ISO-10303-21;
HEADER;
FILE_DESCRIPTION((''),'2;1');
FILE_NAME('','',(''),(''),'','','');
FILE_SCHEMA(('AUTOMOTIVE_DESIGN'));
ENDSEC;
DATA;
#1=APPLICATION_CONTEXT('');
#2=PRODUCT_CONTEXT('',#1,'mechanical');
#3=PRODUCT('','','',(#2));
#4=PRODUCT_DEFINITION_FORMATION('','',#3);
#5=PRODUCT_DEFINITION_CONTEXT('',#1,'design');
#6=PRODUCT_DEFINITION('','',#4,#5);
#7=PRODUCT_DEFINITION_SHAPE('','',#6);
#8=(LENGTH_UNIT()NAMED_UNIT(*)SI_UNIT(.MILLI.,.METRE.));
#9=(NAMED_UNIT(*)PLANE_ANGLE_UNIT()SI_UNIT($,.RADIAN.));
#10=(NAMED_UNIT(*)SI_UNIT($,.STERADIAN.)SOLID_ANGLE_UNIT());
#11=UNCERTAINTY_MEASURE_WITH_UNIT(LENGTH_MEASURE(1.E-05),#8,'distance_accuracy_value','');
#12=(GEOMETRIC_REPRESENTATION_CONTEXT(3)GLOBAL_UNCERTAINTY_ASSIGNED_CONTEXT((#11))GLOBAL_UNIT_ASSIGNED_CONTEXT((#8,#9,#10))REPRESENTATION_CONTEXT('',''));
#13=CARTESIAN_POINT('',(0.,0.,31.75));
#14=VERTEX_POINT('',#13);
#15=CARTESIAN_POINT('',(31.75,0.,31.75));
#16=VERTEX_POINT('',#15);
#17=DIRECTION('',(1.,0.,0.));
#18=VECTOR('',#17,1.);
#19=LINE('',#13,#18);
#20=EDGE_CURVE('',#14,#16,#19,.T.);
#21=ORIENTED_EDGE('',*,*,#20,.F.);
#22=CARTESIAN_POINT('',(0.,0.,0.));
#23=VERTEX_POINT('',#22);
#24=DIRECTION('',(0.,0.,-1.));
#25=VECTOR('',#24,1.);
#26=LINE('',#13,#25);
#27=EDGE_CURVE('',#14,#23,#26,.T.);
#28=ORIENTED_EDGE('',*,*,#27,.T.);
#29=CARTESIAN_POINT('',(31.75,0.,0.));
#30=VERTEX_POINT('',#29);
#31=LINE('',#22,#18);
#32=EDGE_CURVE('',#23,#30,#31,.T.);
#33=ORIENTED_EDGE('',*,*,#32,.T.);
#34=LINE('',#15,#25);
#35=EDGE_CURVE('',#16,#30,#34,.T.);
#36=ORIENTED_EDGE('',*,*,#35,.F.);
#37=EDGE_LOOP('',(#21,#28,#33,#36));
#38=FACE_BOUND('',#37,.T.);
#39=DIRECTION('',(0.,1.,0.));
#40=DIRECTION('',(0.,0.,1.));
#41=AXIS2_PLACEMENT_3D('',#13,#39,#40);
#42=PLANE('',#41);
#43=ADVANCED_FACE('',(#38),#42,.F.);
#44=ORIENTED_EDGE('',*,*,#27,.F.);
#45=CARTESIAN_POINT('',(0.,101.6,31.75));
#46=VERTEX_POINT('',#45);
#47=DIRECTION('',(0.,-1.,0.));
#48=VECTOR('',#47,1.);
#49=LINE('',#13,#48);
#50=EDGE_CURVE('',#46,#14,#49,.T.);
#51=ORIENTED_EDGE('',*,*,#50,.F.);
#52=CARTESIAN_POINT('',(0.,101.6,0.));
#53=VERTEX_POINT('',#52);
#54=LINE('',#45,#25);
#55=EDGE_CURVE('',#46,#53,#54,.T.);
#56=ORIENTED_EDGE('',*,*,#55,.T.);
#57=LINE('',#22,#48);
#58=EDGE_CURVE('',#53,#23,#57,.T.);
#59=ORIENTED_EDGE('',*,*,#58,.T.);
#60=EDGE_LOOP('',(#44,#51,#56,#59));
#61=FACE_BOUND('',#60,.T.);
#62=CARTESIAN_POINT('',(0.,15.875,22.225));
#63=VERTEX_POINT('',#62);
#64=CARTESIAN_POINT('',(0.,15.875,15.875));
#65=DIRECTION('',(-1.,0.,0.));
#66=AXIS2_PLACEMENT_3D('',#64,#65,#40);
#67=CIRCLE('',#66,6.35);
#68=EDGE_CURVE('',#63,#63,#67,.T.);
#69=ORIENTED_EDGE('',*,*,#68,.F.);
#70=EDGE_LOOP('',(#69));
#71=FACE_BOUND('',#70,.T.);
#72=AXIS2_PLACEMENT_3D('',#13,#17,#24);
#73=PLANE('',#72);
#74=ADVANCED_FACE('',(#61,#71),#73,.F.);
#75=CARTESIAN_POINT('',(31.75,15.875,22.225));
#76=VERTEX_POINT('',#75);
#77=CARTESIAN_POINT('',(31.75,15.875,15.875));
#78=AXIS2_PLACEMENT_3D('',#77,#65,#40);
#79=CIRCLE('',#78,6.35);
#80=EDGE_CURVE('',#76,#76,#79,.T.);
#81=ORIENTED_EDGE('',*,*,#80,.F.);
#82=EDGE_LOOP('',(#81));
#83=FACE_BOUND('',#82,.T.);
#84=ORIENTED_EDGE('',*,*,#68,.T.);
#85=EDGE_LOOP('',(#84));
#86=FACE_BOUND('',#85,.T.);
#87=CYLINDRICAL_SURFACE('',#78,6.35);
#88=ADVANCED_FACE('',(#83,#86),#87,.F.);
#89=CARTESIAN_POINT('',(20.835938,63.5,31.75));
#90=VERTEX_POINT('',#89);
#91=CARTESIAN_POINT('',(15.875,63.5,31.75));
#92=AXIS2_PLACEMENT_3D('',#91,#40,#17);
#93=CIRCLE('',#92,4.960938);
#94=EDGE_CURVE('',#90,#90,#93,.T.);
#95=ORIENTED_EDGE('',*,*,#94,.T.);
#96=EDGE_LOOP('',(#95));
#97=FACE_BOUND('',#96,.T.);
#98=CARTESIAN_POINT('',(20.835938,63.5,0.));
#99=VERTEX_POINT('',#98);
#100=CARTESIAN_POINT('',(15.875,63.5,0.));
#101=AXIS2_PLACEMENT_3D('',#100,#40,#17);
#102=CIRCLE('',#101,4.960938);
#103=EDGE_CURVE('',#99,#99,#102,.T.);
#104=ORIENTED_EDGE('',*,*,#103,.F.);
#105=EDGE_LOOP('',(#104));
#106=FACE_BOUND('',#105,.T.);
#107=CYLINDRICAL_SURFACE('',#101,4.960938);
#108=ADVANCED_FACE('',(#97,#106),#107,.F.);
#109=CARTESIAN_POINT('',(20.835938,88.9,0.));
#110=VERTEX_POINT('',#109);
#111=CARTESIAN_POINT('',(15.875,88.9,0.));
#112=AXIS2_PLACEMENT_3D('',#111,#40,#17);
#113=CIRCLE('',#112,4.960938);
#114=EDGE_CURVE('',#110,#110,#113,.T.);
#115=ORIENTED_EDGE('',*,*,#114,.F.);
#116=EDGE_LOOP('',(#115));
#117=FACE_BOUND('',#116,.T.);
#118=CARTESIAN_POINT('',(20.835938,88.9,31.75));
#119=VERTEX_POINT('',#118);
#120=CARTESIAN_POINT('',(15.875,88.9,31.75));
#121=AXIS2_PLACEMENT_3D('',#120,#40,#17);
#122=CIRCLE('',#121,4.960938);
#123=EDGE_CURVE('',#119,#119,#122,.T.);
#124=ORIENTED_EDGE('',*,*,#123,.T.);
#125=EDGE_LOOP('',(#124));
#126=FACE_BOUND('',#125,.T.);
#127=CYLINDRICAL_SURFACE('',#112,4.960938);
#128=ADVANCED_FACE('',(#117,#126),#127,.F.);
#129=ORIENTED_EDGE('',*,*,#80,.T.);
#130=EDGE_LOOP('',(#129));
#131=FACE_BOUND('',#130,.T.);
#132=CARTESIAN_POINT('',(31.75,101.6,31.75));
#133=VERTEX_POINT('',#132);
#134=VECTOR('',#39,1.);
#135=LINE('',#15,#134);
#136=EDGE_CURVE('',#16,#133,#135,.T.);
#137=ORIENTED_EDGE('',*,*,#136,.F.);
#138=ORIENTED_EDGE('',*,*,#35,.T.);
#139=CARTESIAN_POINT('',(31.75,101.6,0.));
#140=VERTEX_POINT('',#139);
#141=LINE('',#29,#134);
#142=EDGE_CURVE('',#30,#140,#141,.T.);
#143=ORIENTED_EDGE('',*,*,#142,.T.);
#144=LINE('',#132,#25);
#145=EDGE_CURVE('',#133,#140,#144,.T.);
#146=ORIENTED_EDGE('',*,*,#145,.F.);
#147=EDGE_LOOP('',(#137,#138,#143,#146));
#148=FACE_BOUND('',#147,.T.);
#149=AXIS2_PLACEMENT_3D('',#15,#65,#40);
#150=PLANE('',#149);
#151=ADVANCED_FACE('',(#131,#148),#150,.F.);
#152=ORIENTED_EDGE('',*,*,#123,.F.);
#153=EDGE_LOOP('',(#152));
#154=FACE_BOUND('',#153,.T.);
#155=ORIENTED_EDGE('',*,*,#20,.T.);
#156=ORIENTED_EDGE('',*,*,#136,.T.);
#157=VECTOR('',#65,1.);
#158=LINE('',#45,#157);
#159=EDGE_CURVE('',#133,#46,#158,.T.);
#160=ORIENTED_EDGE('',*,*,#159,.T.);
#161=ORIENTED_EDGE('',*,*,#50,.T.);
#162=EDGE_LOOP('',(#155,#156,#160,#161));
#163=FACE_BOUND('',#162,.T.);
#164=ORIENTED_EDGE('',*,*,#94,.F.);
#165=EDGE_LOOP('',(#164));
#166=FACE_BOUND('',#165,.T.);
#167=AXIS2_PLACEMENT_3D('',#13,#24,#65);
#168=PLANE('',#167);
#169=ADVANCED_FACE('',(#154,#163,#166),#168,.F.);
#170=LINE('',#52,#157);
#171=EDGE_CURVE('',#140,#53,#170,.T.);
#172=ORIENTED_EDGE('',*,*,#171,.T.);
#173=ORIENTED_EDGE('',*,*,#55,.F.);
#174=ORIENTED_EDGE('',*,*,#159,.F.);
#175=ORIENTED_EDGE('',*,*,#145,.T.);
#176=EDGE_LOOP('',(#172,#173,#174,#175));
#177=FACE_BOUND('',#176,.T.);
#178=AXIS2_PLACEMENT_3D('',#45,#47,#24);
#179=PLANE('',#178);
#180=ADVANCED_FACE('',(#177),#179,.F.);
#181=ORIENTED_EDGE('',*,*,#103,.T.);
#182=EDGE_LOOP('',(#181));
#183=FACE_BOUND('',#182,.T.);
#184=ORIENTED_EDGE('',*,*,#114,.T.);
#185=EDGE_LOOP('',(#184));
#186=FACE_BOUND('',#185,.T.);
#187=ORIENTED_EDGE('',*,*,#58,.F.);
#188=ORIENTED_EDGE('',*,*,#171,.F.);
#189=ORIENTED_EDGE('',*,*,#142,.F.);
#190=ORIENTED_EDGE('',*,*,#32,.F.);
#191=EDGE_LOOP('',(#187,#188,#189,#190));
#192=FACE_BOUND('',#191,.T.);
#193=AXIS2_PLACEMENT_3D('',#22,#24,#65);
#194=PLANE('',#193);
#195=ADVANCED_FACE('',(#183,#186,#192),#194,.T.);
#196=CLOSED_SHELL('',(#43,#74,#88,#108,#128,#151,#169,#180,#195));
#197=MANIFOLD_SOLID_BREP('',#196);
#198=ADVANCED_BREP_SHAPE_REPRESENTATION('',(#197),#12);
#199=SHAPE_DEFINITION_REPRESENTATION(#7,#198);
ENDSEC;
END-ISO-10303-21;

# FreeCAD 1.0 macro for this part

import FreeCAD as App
import Part
import Sketcher

V = App.Vector
Q = App.Units.Quantity

doc = App.newDocument("Part")
body = doc.addObject("PartDesign::Body", "Body")

# Sketch on XY plane
sketch1 = doc.addObject("Sketcher::SketchObject", "Sketch")
body.addObject(sketch1)
sketch1.AttachmentSupport = (doc.XY_Plane, [""])
sketch1.MapMode = "FlatFace"
sketch1.addGeometry(Part.LineSegment(V(0, 101.6, 0), V(0, 0, 0)), False)
sketch1.addGeometry(Part.LineSegment(V(0, 0, 0), V(31.75, 0, 0)), False)
sketch1.addGeometry(Part.LineSegment(V(31.75, 0, 0), V(31.75, 101.6, 0)), False)
sketch1.addGeometry(Part.LineSegment(V(31.75, 101.6, 0), V(0, 101.6, 0)), False)
sketch1.addConstraint(Sketcher.Constraint("Coincident", 0, 2, 1, 1))
sketch1.addConstraint(Sketcher.Constraint("Coincident", 1, 2, 2, 1))
sketch1.addConstraint(Sketcher.Constraint("Coincident", 2, 2, 3, 1))
sketch1.addConstraint(Sketcher.Constraint("Coincident", 3, 2, 0, 1))
sketch1.addConstraint(Sketcher.Constraint("Vertical", 0))
sketch1.addConstraint(Sketcher.Constraint("Horizontal", 1))
sketch1.addConstraint(Sketcher.Constraint("Vertical", 2))
sketch1.addConstraint(Sketcher.Constraint("Horizontal", 3))
sketch1.addConstraint(Sketcher.Constraint("Coincident", 0, 2, -1, 1))
sketch1.addConstraint(Sketcher.Constraint("DistanceY", 0, 2, 0, 1, Q("4 in")))
sketch1.addConstraint(Sketcher.Constraint("DistanceX", 1, 1, 1, 2, Q("1.25 in")))
pad1 = doc.addObject("PartDesign::Pad", "Pad")
body.addObject(pad1)
pad1.Profile = sketch1
pad1.Length = Q("1.25 in")

# Sketch on XY plane
sketch2 = doc.addObject("Sketcher::SketchObject", "Sketch001")
body.addObject(sketch2)
sketch2.AttachmentSupport = (doc.XY_Plane, [""])
sketch2.MapMode = "FlatFace"
sketch2.AttachmentOffset = App.Placement(V(0, 0, 1.25 * 25.4), App.Rotation())
sketch2.addGeometry(Part.Circle(V(15.875, 88.9, 0), V(0, 0, 1), 4.960938), False)
sketch2.addGeometry(Part.Circle(V(15.875, 63.5, 0), V(0, 0, 1), 4.960938), False)
sketch2.addConstraint(Sketcher.Constraint("Equal", 0, 1))
sketch2.addConstraint(Sketcher.Constraint("Vertical", 0, 3, 1, 3))
sketch2.addConstraint(Sketcher.Constraint("Diameter", 0, Q("0.390625 in")))
sketch2.addConstraint(Sketcher.Constraint("DistanceY", 1, 3, 0, 3, Q("1 in")))
sketch2.addConstraint(Sketcher.Constraint("DistanceY", -1, 1, 0, 3, Q("3.5 in")))
sketch2.addConstraint(Sketcher.Constraint("DistanceX", -1, 1, 0, 3, Q("0.625 in")))
pocket1 = doc.addObject("PartDesign::Pocket", "Pocket")
body.addObject(pocket1)
pocket1.Profile = sketch2
pocket1.Type = "ThroughAll"

# Sketch on YZ plane
sketch3 = doc.addObject("Sketcher::SketchObject", "Sketch002")
body.addObject(sketch3)
sketch3.AttachmentSupport = (doc.YZ_Plane, [""])
sketch3.MapMode = "FlatFace"
sketch3.addGeometry(Part.Circle(V(15.875, 15.875, 0), V(0, 0, 1), 6.35), False)
sketch3.addConstraint(Sketcher.Constraint("Diameter", 0, Q("0.5 in")))
sketch3.addConstraint(Sketcher.Constraint("DistanceX", -1, 1, 0, 3, Q("0.625 in")))
sketch3.addConstraint(Sketcher.Constraint("DistanceY", -1, 1, 0, 3, Q("0.625 in")))
pocket2 = doc.addObject("PartDesign::Pocket", "Pocket001")
body.addObject(pocket2)
pocket2.Profile = sketch3
pocket2.Type = "ThroughAll"
pocket2.Reversed = True

doc.recompute()
